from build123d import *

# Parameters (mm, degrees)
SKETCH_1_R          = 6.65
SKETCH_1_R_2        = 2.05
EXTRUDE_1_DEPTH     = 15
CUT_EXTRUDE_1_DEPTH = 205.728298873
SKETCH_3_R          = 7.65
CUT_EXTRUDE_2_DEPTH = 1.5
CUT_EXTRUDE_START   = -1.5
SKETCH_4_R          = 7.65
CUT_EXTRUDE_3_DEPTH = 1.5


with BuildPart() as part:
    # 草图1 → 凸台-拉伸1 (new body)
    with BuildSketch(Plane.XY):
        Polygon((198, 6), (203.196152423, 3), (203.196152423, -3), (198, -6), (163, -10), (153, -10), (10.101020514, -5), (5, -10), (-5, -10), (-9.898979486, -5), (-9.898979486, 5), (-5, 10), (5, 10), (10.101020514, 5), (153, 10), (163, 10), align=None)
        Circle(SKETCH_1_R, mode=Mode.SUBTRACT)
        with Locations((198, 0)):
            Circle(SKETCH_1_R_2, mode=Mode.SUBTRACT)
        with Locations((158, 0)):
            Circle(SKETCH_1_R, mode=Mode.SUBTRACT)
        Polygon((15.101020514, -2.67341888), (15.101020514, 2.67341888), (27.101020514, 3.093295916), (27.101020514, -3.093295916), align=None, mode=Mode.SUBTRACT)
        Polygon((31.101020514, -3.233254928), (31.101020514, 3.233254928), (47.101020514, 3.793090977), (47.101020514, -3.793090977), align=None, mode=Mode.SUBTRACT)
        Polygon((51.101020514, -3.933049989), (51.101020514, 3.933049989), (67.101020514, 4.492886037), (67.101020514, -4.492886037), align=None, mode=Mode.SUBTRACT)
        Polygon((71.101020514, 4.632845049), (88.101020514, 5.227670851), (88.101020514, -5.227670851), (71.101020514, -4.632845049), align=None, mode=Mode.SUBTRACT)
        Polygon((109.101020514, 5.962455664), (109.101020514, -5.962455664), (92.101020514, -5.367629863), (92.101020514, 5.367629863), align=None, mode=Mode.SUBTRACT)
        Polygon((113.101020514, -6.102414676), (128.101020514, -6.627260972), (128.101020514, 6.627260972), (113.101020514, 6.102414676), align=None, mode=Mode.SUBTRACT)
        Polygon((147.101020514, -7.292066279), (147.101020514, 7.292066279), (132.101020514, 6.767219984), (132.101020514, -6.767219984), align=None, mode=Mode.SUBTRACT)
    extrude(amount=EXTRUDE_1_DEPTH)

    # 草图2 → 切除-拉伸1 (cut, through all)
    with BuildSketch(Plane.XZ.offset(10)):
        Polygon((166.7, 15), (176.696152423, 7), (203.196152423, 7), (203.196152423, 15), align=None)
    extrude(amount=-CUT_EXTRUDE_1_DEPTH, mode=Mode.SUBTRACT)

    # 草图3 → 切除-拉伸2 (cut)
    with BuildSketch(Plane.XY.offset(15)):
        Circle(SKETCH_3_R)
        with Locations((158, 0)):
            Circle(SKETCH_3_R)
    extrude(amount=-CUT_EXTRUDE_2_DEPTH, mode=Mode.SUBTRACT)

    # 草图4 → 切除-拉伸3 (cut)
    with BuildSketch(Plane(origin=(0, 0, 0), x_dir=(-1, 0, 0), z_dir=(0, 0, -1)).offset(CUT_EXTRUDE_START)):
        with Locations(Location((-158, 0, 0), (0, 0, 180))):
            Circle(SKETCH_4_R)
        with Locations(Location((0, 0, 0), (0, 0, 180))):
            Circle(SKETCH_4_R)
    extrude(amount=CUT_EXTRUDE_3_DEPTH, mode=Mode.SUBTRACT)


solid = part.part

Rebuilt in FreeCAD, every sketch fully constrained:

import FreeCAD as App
import Part
import Sketcher

V = App.Vector
Q = App.Units.Quantity

doc = App.newDocument("Part")
body = doc.addObject("PartDesign::Body", "Body")

# Sketch on XY plane
sketch1 = body.newObject("Sketcher::SketchObject", "Sketch")
sketch1.AttachmentSupport = (doc.getObject("XY_Plane"), [""])
sketch1.MapMode = "FlatFace"
sketch1.addGeometry(Part.LineSegment(V(203.196152, 3, 0), V(198, 6, 0)), False)
sketch1.addGeometry(Part.LineSegment(V(198, 6, 0), V(163, 10, 0)), False)
sketch1.addGeometry(Part.LineSegment(V(163, 10, 0), V(153, 10, 0)), False)
sketch1.addGeometry(Part.LineSegment(V(153, 10, 0), V(10.101021, 5, 0)), False)
sketch1.addGeometry(Part.LineSegment(V(10.101021, 5, 0), V(5, 10, 0)), False)
sketch1.addGeometry(Part.LineSegment(V(5, 10, 0), V(-5, 10, 0)), False)
sketch1.addGeometry(Part.LineSegment(V(-5, 10, 0), V(-9.898979, 5, 0)), False)
sketch1.addGeometry(Part.LineSegment(V(-9.898979, 5, 0), V(-9.898979, -5, 0)), False)
sketch1.addGeometry(Part.LineSegment(V(-9.898979, -5, 0), V(-5, -10, 0)), False)
sketch1.addGeometry(Part.LineSegment(V(-5, -10, 0), V(5, -10, 0)), False)
sketch1.addGeometry(Part.LineSegment(V(5, -10, 0), V(10.101021, -5, 0)), False)
sketch1.addGeometry(Part.LineSegment(V(10.101021, -5, 0), V(153, -10, 0)), False)
sketch1.addGeometry(Part.LineSegment(V(153, -10, 0), V(163, -10, 0)), False)
sketch1.addGeometry(Part.LineSegment(V(163, -10, 0), V(198, -6, 0)), False)
sketch1.addGeometry(Part.LineSegment(V(198, -6, 0), V(203.196152, -3, 0)), False)
sketch1.addGeometry(Part.LineSegment(V(203.196152, -3, 0), V(203.196152, 3, 0)), False)
sketch1.addGeometry(Part.Circle(V(198, 0, 0), V(0, 0, 1), 2.05), False)
sketch1.addGeometry(Part.Circle(V(158, 0, 0), V(0, 0, 1), 6.65), False)
sketch1.addGeometry(Part.LineSegment(V(147.101021, -7.292066, 0), V(132.101021, -6.76722, 0)), False)
sketch1.addGeometry(Part.LineSegment(V(132.101021, -6.76722, 0), V(132.101021, 6.76722, 0)), False)
sketch1.addGeometry(Part.LineSegment(V(132.101021, 6.76722, 0), V(147.101021, 7.292066, 0)), False)
sketch1.addGeometry(Part.LineSegment(V(147.101021, 7.292066, 0), V(147.101021, -7.292066, 0)), False)
sketch1.addGeometry(Part.LineSegment(V(113.101021, -6.102415, 0), V(113.101021, 6.102415, 0)), False)
sketch1.addGeometry(Part.LineSegment(V(113.101021, 6.102415, 0), V(128.101021, 6.627261, 0)), False)
sketch1.addGeometry(Part.LineSegment(V(128.101021, 6.627261, 0), V(128.101021, -6.627261, 0)), False)
sketch1.addGeometry(Part.LineSegment(V(128.101021, -6.627261, 0), V(113.101021, -6.102415, 0)), False)
sketch1.addGeometry(Part.LineSegment(V(109.101021, 5.962456, 0), V(109.101021, -5.962456, 0)), False)
sketch1.addGeometry(Part.LineSegment(V(109.101021, -5.962456, 0), V(92.101021, -5.36763, 0)), False)
sketch1.addGeometry(Part.LineSegment(V(92.101021, -5.36763, 0), V(92.101021, 5.36763, 0)), False)
sketch1.addGeometry(Part.LineSegment(V(92.101021, 5.36763, 0), V(109.101021, 5.962456, 0)), False)
sketch1.addGeometry(Part.LineSegment(V(71.101021, 4.632845, 0), V(88.101021, 5.227671, 0)), False)
sketch1.addGeometry(Part.LineSegment(V(88.101021, 5.227671, 0), V(88.101021, -5.227671, 0)), False)
sketch1.addGeometry(Part.LineSegment(V(88.101021, -5.227671, 0), V(71.101021, -4.632845, 0)), False)
sketch1.addGeometry(Part.LineSegment(V(71.101021, -4.632845, 0), V(71.101021, 4.632845, 0)), False)
sketch1.addGeometry(Part.LineSegment(V(51.101021, -3.93305, 0), V(51.101021, 3.93305, 0)), False)
sketch1.addGeometry(Part.LineSegment(V(51.101021, 3.93305, 0), V(67.101021, 4.492886, 0)), False)
sketch1.addGeometry(Part.LineSegment(V(67.101021, 4.492886, 0), V(67.101021, -4.492886, 0)), False)
sketch1.addGeometry(Part.LineSegment(V(67.101021, -4.492886, 0), V(51.101021, -3.93305, 0)), False)
sketch1.addGeometry(Part.LineSegment(V(31.101021, -3.233255, 0), V(31.101021, 3.233255, 0)), False)
sketch1.addGeometry(Part.LineSegment(V(31.101021, 3.233255, 0), V(47.101021, 3.793091, 0)), False)
sketch1.addGeometry(Part.LineSegment(V(47.101021, 3.793091, 0), V(47.101021, -3.793091, 0)), False)
sketch1.addGeometry(Part.LineSegment(V(47.101021, -3.793091, 0), V(31.101021, -3.233255, 0)), False)
sketch1.addGeometry(Part.LineSegment(V(15.101021, -2.673419, 0), V(15.101021, 2.673419, 0)), False)
sketch1.addGeometry(Part.LineSegment(V(15.101021, 2.673419, 0), V(27.101021, 3.093296, 0)), False)
sketch1.addGeometry(Part.LineSegment(V(27.101021, 3.093296, 0), V(27.101021, -3.093296, 0)), False)
sketch1.addGeometry(Part.LineSegment(V(27.101021, -3.093296, 0), V(15.101021, -2.673419, 0)), False)
sketch1.addGeometry(Part.Circle(V(0, 0, 0), V(0, 0, 1), 6.65), False)
sketch1.addConstraint(Sketcher.Constraint("Coincident", 0, 2, 1, 1))
sketch1.addConstraint(Sketcher.Constraint("Coincident", 1, 2, 2, 1))
sketch1.addConstraint(Sketcher.Constraint("Coincident", 2, 2, 3, 1))
sketch1.addConstraint(Sketcher.Constraint("Coincident", 3, 2, 4, 1))
sketch1.addConstraint(Sketcher.Constraint("Coincident", 4, 2, 5, 1))
sketch1.addConstraint(Sketcher.Constraint("Coincident", 5, 2, 6, 1))
sketch1.addConstraint(Sketcher.Constraint("Coincident", 6, 2, 7, 1))
sketch1.addConstraint(Sketcher.Constraint("Coincident", 7, 2, 8, 1))
sketch1.addConstraint(Sketcher.Constraint("Coincident", 8, 2, 9, 1))
sketch1.addConstraint(Sketcher.Constraint("Coincident", 9, 2, 10, 1))
sketch1.addConstraint(Sketcher.Constraint("Coincident", 10, 2, 11, 1))
sketch1.addConstraint(Sketcher.Constraint("Coincident", 11, 2, 12, 1))
sketch1.addConstraint(Sketcher.Constraint("Coincident", 12, 2, 13, 1))
sketch1.addConstraint(Sketcher.Constraint("Coincident", 13, 2, 14, 1))
sketch1.addConstraint(Sketcher.Constraint("Coincident", 14, 2, 15, 1))
sketch1.addConstraint(Sketcher.Constraint("Coincident", 15, 2, 0, 1))
sketch1.addConstraint(Sketcher.Constraint("Coincident", 18, 2, 19, 1))
sketch1.addConstraint(Sketcher.Constraint("Coincident", 19, 2, 20, 1))
sketch1.addConstraint(Sketcher.Constraint("Coincident", 20, 2, 21, 1))
sketch1.addConstraint(Sketcher.Constraint("Coincident", 21, 2, 18, 1))
sketch1.addConstraint(Sketcher.Constraint("Coincident", 22, 2, 23, 1))
sketch1.addConstraint(Sketcher.Constraint("Coincident", 23, 2, 24, 1))
sketch1.addConstraint(Sketcher.Constraint("Coincident", 24, 2, 25, 1))
sketch1.addConstraint(Sketcher.Constraint("Coincident", 25, 2, 22, 1))
sketch1.addConstraint(Sketcher.Constraint("Coincident", 26, 2, 27, 1))
sketch1.addConstraint(Sketcher.Constraint("Coincident", 27, 2, 28, 1))
sketch1.addConstraint(Sketcher.Constraint("Coincident", 28, 2, 29, 1))
sketch1.addConstraint(Sketcher.Constraint("Coincident", 29, 2, 26, 1))
sketch1.addConstraint(Sketcher.Constraint("Coincident", 30, 2, 31, 1))
sketch1.addConstraint(Sketcher.Constraint("Coincident", 31, 2, 32, 1))
sketch1.addConstraint(Sketcher.Constraint("Coincident", 32, 2, 33, 1))
sketch1.addConstraint(Sketcher.Constraint("Coincident", 33, 2, 30, 1))
sketch1.addConstraint(Sketcher.Constraint("Coincident", 34, 2, 35, 1))
sketch1.addConstraint(Sketcher.Constraint("Coincident", 35, 2, 36, 1))
sketch1.addConstraint(Sketcher.Constraint("Coincident", 36, 2, 37, 1))
sketch1.addConstraint(Sketcher.Constraint("Coincident", 37, 2, 34, 1))
sketch1.addConstraint(Sketcher.Constraint("Coincident", 38, 2, 39, 1))
sketch1.addConstraint(Sketcher.Constraint("Coincident", 39, 2, 40, 1))
sketch1.addConstraint(Sketcher.Constraint("Coincident", 40, 2, 41, 1))
sketch1.addConstraint(Sketcher.Constraint("Coincident", 41, 2, 38, 1))
sketch1.addConstraint(Sketcher.Constraint("Coincident", 42, 2, 43, 1))
sketch1.addConstraint(Sketcher.Constraint("Coincident", 43, 2, 44, 1))
sketch1.addConstraint(Sketcher.Constraint("Coincident", 44, 2, 45, 1))
sketch1.addConstraint(Sketcher.Constraint("Coincident", 45, 2, 42, 1))
sketch1.addConstraint(Sketcher.Constraint("Horizontal", 2))
sketch1.addConstraint(Sketcher.Constraint("Horizontal", 5))
sketch1.addConstraint(Sketcher.Constraint("Vertical", 7))
sketch1.addConstraint(Sketcher.Constraint("Horizontal", 9))
sketch1.addConstraint(Sketcher.Constraint("Horizontal", 12))
sketch1.addConstraint(Sketcher.Constraint("Vertical", 15))
sketch1.addConstraint(Sketcher.Constraint("Vertical", 19))
sketch1.addConstraint(Sketcher.Constraint("Vertical", 21))
sketch1.addConstraint(Sketcher.Constraint("Vertical", 22))
sketch1.addConstraint(Sketcher.Constraint("Vertical", 24))
sketch1.addConstraint(Sketcher.Constraint("Vertical", 26))
sketch1.addConstraint(Sketcher.Constraint("Vertical", 28))
sketch1.addConstraint(Sketcher.Constraint("Vertical", 31))
sketch1.addConstraint(Sketcher.Constraint("Vertical", 33))
sketch1.addConstraint(Sketcher.Constraint("Vertical", 34))
sketch1.addConstraint(Sketcher.Constraint("Vertical", 36))
sketch1.addConstraint(Sketcher.Constraint("Vertical", 38))
sketch1.addConstraint(Sketcher.Constraint("Vertical", 40))
sketch1.addConstraint(Sketcher.Constraint("Vertical", 42))
sketch1.addConstraint(Sketcher.Constraint("Vertical", 44))
sketch1.addConstraint(Sketcher.Constraint("Coincident", 46, 3, -1, 1))
sketch1.addConstraint(Sketcher.Constraint("Equal", 17, 46))
sketch1.addConstraint(Sketcher.Constraint("Symmetric", 4, 2, 8, 2, -1, 1))
sketch1.addConstraint(Sketcher.Constraint("Symmetric", 3, 2, 10, 2, -1))
sketch1.addConstraint(Sketcher.Constraint("Symmetric", 2, 2, 11, 2, -1))
sketch1.addConstraint(Sketcher.Constraint("Symmetric", 0, 2, 13, 2, -1))
sketch1.addConstraint(Sketcher.Constraint("PointOnObject", 16, 3, -1))
sketch1.addConstraint(Sketcher.Constraint("PointOnObject", 17, 3, -1))
sketch1.addConstraint(Sketcher.Constraint("Parallel", 11, 18))
sketch1.addConstraint(Sketcher.Constraint("Parallel", 3, 20))
sketch1.addConstraint(Sketcher.Constraint("Parallel", 20, 23))
sketch1.addConstraint(Sketcher.Constraint("Parallel", 18, 25))
sketch1.addConstraint(Sketcher.Constraint("Parallel", 25, 27))
sketch1.addConstraint(Sketcher.Constraint("Parallel", 23, 29))
sketch1.addConstraint(Sketcher.Constraint("Parallel", 29, 30))
sketch1.addConstraint(Sketcher.Constraint("Parallel", 27, 32))
sketch1.addConstraint(Sketcher.Constraint("Parallel", 30, 35))
sketch1.addConstraint(Sketcher.Constraint("Parallel", 32, 37))
sketch1.addConstraint(Sketcher.Constraint("Parallel", 35, 39))
sketch1.addConstraint(Sketcher.Constraint("Parallel", 37, 41))
sketch1.addConstraint(Sketcher.Constraint("Parallel", 39, 43))
sketch1.addConstraint(Sketcher.Constraint("Parallel", 41, 45))
sketch1.addConstraint(Sketcher.Constraint("Horizontal", 2, 2, 4, 2))
sketch1.addConstraint(Sketcher.Constraint("Horizontal", 3, 2, 6, 2))
sketch1.addConstraint(Sketcher.Constraint("Horizontal", 7, 2, 10, 2))
sketch1.addConstraint(Sketcher.Constraint("Vertical", 16, 3, 0, 2))
sketch1.addConstraint(Sketcher.Constraint("Vertical", 5, 2, 8, 2))
sketch1.addConstraint(Sketcher.Constraint("Vertical", 4, 2, 9, 2))
sketch1.addConstraint(Sketcher.Constraint("Vertical", 1, 2, 12, 2))
sketch1.addConstraint(Sketcher.Constraint("Equal", 2, 5))
sketch1.addConstraint(Sketcher.Constraint("Equal", 12, 7))
sketch1.addConstraint(Sketcher.Constraint("Equal", 0, 14))
sketch1.addConstraint(Sketcher.Constraint("Equal", 20, 23))
sketch1.addConstraint(Sketcher.Constraint("Equal", 29, 30))
sketch1.addConstraint(Sketcher.Constraint("Equal", 37, 39))
sketch1.addConstraint(Sketcher.Constraint("Diameter", 16, 4.1))
sketch1.addConstraint(Sketcher.Constraint("Diameter", 17, 13.3))
sketch1.addConstraint(Sketcher.Constraint("DistanceX", 2, 2, 2, 1, 10.0))
sketch1.addConstraint(Sketcher.Constraint("DistanceY", 15, 1, 15, 2, 6.0))
sketch1.addConstraint(Sketcher.Constraint("Angle", 0, Q("150 deg")))
sketch1.addConstraint(Sketcher.Constraint("Distance", 0, 6.0))
sketch1.addConstraint(Sketcher.Constraint("Distance", 6, 7.0))
sketch1.addConstraint(Sketcher.Constraint("DistanceX", -1, 1, 16, 3, 198.0))
sketch1.addConstraint(Sketcher.Constraint("DistanceX", -1, 1, 17, 3, 158.0))
sketch1.addConstraint(Sketcher.Constraint("DistanceX", -1, 1, 1, 2, 163.0))
sketch1.addConstraint(Sketcher.Constraint("DistanceY", -1, 1, 1, 2, 10.0))
sketch1.addConstraint(Sketcher.Constraint("DistanceX", 6, 2, 3, 2, 20.0))
sketch1.addConstraint(Sketcher.Constraint("DistanceX", 19, 2, 20, 2, 15.0))
sketch1.addConstraint(Sketcher.Constraint("DistanceX", 22, 2, 19, 2, 19.0))
sketch1.addConstraint(Sketcher.Constraint("DistanceX", 26, 2, 25, 2, 4.0))
sketch1.addConstraint(Sketcher.Constraint("DistanceX", 27, 2, 26, 2, 17.0))
sketch1.addConstraint(Sketcher.Constraint("DistanceX", 30, 2, 28, 2, 4.0))
sketch1.addConstraint(Sketcher.Constraint("DistanceX", 34, 2, 33, 2, 20.0))
sketch1.addConstraint(Sketcher.Constraint("DistanceX", 3, 2, 34, 2, 41.0))
sketch1.addConstraint(Sketcher.Constraint("DistanceX", 35, 2, 33, 2, 4.0))
sketch1.addConstraint(Sketcher.Constraint("DistanceX", 38, 2, 34, 2, 20.0))
sketch1.addConstraint(Sketcher.Constraint("DistanceX", 3, 2, 42, 2, 5.0))
sketch1.addConstraint(Sketcher.Constraint("DistanceX", 43, 2, 38, 2, 4.0))
sketch1.addConstraint(Sketcher.Constraint("DistanceY", 34, 1, 34, 2, 7.8661))
sketch1.addConstraint(Sketcher.Constraint("DistanceY", 19, 1, 19, 2, 13.53444))
sketch1.addConstraint(Sketcher.Constraint("DistanceY", 22, 1, 22, 2, 12.204829))
sketch1.addConstraint(Sketcher.Constraint("DistanceY", 26, 2, 26, 1, 11.924911))
sketch1.addConstraint(Sketcher.Constraint("DistanceY", 31, 2, 31, 1, 10.455342))
sketch1.addConstraint(Sketcher.Constraint("DistanceY", 38, 1, 38, 2, 6.46651))
sketch1.addConstraint(Sketcher.Constraint("DistanceY", 44, 2, 44, 1, 6.186592))
sketch1.addConstraint(Sketcher.Constraint("DistanceY", 27, 2, 30, 2, 10.595301))
sketch1.addConstraint(Sketcher.Constraint("DistanceY", 18, 2, -1, 1, 6.76722))
sketch1.addConstraint(Sketcher.Constraint("DistanceY", -1, 1, 23, 2, 6.627261))
sketch1.addConstraint(Sketcher.Constraint("DistanceY", 27, 2, -1, 1, 5.36763))
sketch1.addConstraint(Sketcher.Constraint("DistanceY", -1, 1, 34, 2, 3.93305))
sketch1.addConstraint(Sketcher.Constraint("DistanceY", -1, 1, 39, 2, 3.793091))
sketch1.addConstraint(Sketcher.Constraint("DistanceY", -1, 1, 42, 2, 2.673419))
pad1 = body.newObject("PartDesign::Pad", "Pad")
pad1.Profile = sketch1
pad1.Length = 15

# Sketch on XZ plane
sketch2 = body.newObject("Sketcher::SketchObject", "Sketch001")
sketch2.AttachmentSupport = (doc.getObject("XZ_Plane"), [""])
sketch2.MapMode = "FlatFace"
sketch2.AttachmentOffset = App.Placement(V(0, 0, 10), App.Rotation())
sketch2.addGeometry(Part.LineSegment(V(166.7, 15, 0), V(176.696152, 7, 0)), False)
sketch2.addGeometry(Part.LineSegment(V(176.696152, 7, 0), V(203.196152, 7, 0)), False)
sketch2.addGeometry(Part.LineSegment(V(203.196152, 7, 0), V(203.196152, 15, 0)), False)
sketch2.addGeometry(Part.LineSegment(V(203.196152, 15, 0), V(166.7, 15, 0)), False)
sketch2.addConstraint(Sketcher.Constraint("Coincident", 0, 2, 1, 1))
sketch2.addConstraint(Sketcher.Constraint("Coincident", 1, 2, 2, 1))
sketch2.addConstraint(Sketcher.Constraint("Coincident", 2, 2, 3, 1))
sketch2.addConstraint(Sketcher.Constraint("Coincident", 3, 2, 0, 1))
sketch2.addConstraint(Sketcher.Constraint("Horizontal", 1))
sketch2.addConstraint(Sketcher.Constraint("Vertical", 2))
sketch2.addConstraint(Sketcher.Constraint("Horizontal", 3))
sketch2.addConstraint(Sketcher.Constraint("DistanceY", 2, 1, 2, 2, 8.0))
sketch2.addConstraint(Sketcher.Constraint("DistanceX", 1, 1, 1, 2, 26.5))
sketch2.addConstraint(Sketcher.Constraint("DistanceY", -1, 1, 0, 2, 7.0))
sketch2.addConstraint(Sketcher.Constraint("DistanceX", -1, 1, 3, 2, 166.7))
sketch2.addConstraint(Sketcher.Constraint("DistanceX", 3, 2, 3, 1, 36.496152))
pocket1 = body.newObject("PartDesign::Pocket", "Pocket")
pocket1.Profile = sketch2
pocket1.Type = "ThroughAll"

# Sketch on XY plane
sketch3 = body.newObject("Sketcher::SketchObject", "Sketch002")
sketch3.AttachmentSupport = (doc.getObject("XY_Plane"), [""])
sketch3.MapMode = "FlatFace"
sketch3.AttachmentOffset = App.Placement(V(0, 0, 15), App.Rotation())
sketch3.addGeometry(Part.Circle(V(0, 0, 0), V(0, 0, 1), 7.65), False)
sketch3.addGeometry(Part.Circle(V(158, 0, 0), V(0, 0, 1), 7.65), False)
sketch3.addConstraint(Sketcher.Constraint("Coincident", 0, 3, -1, 1))
sketch3.addConstraint(Sketcher.Constraint("Equal", 0, 1))
sketch3.addConstraint(Sketcher.Constraint("PointOnObject", 1, 3, -1))
sketch3.addConstraint(Sketcher.Constraint("Diameter", 0, 15.3))
sketch3.addConstraint(Sketcher.Constraint("DistanceX", -1, 1, 1, 3, 158.0))
pocket2 = body.newObject("PartDesign::Pocket", "Pocket001")
pocket2.Profile = sketch3
pocket2.Length = 1.5

# Sketch on XY plane
sketch4 = body.newObject("Sketcher::SketchObject", "Sketch003")
sketch4.AttachmentSupport = (doc.getObject("XY_Plane"), [""])
sketch4.MapMode = "FlatFace"
sketch4.AttachmentOffset = App.Placement(V(0, 0, 1.5), App.Rotation())
sketch4.addGeometry(Part.Circle(V(158, 0, 0), V(0, 0, 1), 7.65), False)
sketch4.addGeometry(Part.Circle(V(0, 0, 0), V(0, 0, 1), 7.65), False)
sketch4.addConstraint(Sketcher.Constraint("Coincident", 1, 3, -1, 1))
sketch4.addConstraint(Sketcher.Constraint("Equal", 0, 1))
sketch4.addConstraint(Sketcher.Constraint("PointOnObject", 0, 3, -1))
sketch4.addConstraint(Sketcher.Constraint("Diameter", 0, 15.3))
sketch4.addConstraint(Sketcher.Constraint("DistanceX", -1, 1, 0, 3, 158.0))
pocket3 = body.newObject("PartDesign::Pocket", "Pocket002")
pocket3.Profile = sketch4
pocket3.Length = 1.5

doc.recompute()
